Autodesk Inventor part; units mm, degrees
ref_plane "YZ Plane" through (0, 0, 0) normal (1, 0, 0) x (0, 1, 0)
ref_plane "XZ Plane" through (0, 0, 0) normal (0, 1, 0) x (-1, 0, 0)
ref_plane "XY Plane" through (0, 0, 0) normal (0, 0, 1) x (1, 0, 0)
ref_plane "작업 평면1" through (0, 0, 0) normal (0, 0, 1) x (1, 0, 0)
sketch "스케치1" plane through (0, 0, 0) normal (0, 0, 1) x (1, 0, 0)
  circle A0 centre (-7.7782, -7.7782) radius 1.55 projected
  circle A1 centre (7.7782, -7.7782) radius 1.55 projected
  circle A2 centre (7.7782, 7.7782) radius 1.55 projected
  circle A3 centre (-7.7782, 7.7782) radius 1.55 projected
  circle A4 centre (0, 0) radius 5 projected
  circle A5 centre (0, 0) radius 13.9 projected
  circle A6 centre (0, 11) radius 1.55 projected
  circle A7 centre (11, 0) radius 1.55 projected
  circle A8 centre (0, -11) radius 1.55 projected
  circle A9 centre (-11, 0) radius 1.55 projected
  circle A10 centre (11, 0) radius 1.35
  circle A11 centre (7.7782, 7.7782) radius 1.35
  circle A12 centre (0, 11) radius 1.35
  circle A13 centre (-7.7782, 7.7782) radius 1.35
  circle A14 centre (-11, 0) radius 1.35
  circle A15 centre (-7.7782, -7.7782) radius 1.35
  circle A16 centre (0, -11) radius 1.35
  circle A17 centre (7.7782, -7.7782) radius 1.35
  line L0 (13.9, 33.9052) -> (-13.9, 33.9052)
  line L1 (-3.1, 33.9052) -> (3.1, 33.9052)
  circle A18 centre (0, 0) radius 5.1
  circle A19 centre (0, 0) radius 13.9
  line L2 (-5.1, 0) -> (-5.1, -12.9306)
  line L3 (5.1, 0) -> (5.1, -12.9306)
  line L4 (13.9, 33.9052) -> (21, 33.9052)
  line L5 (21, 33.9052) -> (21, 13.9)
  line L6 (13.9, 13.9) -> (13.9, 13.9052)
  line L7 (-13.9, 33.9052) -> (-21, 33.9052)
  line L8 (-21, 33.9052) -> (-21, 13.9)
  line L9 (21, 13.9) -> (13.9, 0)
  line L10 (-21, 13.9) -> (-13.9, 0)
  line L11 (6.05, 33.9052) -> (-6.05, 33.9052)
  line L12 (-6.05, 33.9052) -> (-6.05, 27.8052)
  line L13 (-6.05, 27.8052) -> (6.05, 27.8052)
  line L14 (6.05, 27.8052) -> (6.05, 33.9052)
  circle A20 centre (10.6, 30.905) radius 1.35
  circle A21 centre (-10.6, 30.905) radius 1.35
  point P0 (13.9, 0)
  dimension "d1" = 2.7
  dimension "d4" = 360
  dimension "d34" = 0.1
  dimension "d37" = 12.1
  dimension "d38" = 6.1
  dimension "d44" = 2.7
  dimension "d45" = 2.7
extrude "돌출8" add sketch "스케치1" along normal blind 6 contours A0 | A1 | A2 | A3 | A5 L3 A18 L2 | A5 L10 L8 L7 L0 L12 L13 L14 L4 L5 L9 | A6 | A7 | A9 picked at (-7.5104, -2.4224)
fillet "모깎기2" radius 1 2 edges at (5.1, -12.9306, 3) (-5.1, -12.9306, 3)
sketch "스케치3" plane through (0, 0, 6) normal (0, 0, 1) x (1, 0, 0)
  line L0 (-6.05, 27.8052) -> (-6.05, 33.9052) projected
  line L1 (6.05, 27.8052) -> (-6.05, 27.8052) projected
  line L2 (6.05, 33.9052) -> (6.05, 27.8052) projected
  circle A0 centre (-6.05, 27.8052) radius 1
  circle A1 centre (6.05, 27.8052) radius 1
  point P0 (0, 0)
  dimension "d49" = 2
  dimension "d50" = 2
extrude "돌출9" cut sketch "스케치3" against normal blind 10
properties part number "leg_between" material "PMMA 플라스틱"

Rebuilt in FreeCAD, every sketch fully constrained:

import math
import FreeCAD as App
import Part
import Sketcher
from FreeCAD import Vector


def edges_at(feature, points):
    """Names of the edges that pass closest to the given points."""
    edges = feature.Shape.Edges
    near = lambda p: min(range(len(edges)), key=lambda i: edges[i].distToShape(Part.Vertex(*p))[0])
    return sorted({f"Edge{near(p) + 1}" for p in points})

doc = App.newDocument("Part")
body = doc.addObject("PartDesign::Body", "Body")

sketch1 = body.newObject("Sketcher::SketchObject", "Sketch")
sketch1.AttachmentSupport = (doc.getObject("XY_Plane"), [""])
sketch1.MapMode = "FlatFace"
sketch1.addGeometry([
    Part.ArcOfCircle(Part.Circle(Vector(0, 0, 0), Vector(0, 0, 1), 13.9), math.radians(-68), math.radians(0)),
    Part.LineSegment(Vector(13.9, 0, 0), Vector(21, 13.9, 0)),
    Part.LineSegment(Vector(21, 13.9, 0), Vector(21, 33.9, 0)),
    Part.LineSegment(Vector(21, 33.9, 0), Vector(6, 33.9, 0)),
    Part.LineSegment(Vector(6, 33.9, 0), Vector(6, 27.8, 0)),
    Part.LineSegment(Vector(6, 27.8, 0), Vector(-6, 27.8, 0)),
    Part.LineSegment(Vector(-6, 27.8, 0), Vector(-6, 33.9, 0)),
    Part.LineSegment(Vector(-6, 33.9, 0), Vector(-21, 33.9, 0)),
    Part.LineSegment(Vector(-21, 33.9, 0), Vector(-21, 13.9, 0)),
    Part.LineSegment(Vector(-21, 13.9, 0), Vector(-13.9, 0, 0)),
    Part.ArcOfCircle(Part.Circle(Vector(0, 0, 0), Vector(0, 0, 1), 13.9), math.radians(180), math.radians(248)),
    Part.LineSegment(Vector(-5.1, -12.9, 0), Vector(-5.1, 0, 0)),
    Part.ArcOfCircle(Part.Circle(Vector(0, 0, 0), Vector(0, 0, 1), 5.1), math.radians(0), math.radians(180)),
    Part.LineSegment(Vector(5.1, 0, 0), Vector(5.1, -12.9, 0)),
    Part.Circle(Vector(-7.8, -7.8, 0), Vector(0, 0, 1), 1.4),
    Part.Circle(Vector(10.6, 30.9, 0), Vector(0, 0, 1), 1.4),
    Part.Circle(Vector(-10.6, 30.9, 0), Vector(0, 0, 1), 1.4),
    Part.Circle(Vector(0, 11, 0), Vector(0, 0, 1), 1.4),
    Part.Circle(Vector(-11, 0, 0), Vector(0, 0, 1), 1.4),
    Part.Circle(Vector(-7.8, 7.8, 0), Vector(0, 0, 1), 1.4),
    Part.Circle(Vector(7.8, -7.8, 0), Vector(0, 0, 1), 1.4),
    Part.Circle(Vector(7.8, 7.8, 0), Vector(0, 0, 1), 1.4),
    Part.Circle(Vector(11, 0, 0), Vector(0, 0, 1), 1.4),
], False)
sketch1.addConstraint([
    Sketcher.Constraint("Coincident", 0, 2, 1, 1),
    Sketcher.Constraint("Coincident", 1, 2, 2, 1),
    Sketcher.Constraint("Coincident", 2, 2, 3, 1),
    Sketcher.Constraint("Coincident", 3, 2, 4, 1),
    Sketcher.Constraint("Coincident", 4, 2, 5, 1),
    Sketcher.Constraint("Coincident", 5, 2, 6, 1),
    Sketcher.Constraint("Coincident", 6, 2, 7, 1),
    Sketcher.Constraint("Coincident", 7, 2, 8, 1),
    Sketcher.Constraint("Coincident", 8, 2, 9, 1),
    Sketcher.Constraint("Coincident", 9, 2, 10, 1),
    Sketcher.Constraint("Coincident", 10, 2, 11, 1),
    Sketcher.Constraint("Tangent", 11, 2, 12, 2),
    Sketcher.Constraint("Tangent", 12, 1, 13, 1),
    Sketcher.Constraint("Coincident", 13, 2, 0, 1),
    Sketcher.Constraint("Vertical", 2),
    Sketcher.Constraint("Horizontal", 3),
    Sketcher.Constraint("Vertical", 4),
    Sketcher.Constraint("Horizontal", 5),
    Sketcher.Constraint("Vertical", 6),
    Sketcher.Constraint("Horizontal", 7),
    Sketcher.Constraint("Vertical", 8),
    Sketcher.Constraint("Vertical", 11),
    Sketcher.Constraint("Vertical", 13),
    Sketcher.Constraint("Coincident", 0, 3, -1, 1),
    Sketcher.Constraint("Coincident", 10, 3, -1, 1),
    Sketcher.Constraint("Coincident", 12, 3, -1, 1),
    Sketcher.Constraint("Equal", 0, 10),
    Sketcher.Constraint("Equal", 14, 15),
    Sketcher.Constraint("Equal", 15, 16),
    Sketcher.Constraint("Equal", 16, 17),
    Sketcher.Constraint("Equal", 17, 18),
    Sketcher.Constraint("Equal", 18, 19),
    Sketcher.Constraint("Equal", 19, 20),
    Sketcher.Constraint("Equal", 20, 21),
    Sketcher.Constraint("Equal", 21, 22),
    Sketcher.Constraint("Symmetric", 19, 3, 20, 3, -1, 1),
    Sketcher.Constraint("Symmetric", 14, 3, 21, 3, -1, 1),
    Sketcher.Constraint("Symmetric", 18, 3, 22, 3, -1, 1),
    Sketcher.Constraint("Symmetric", 15, 3, 16, 3, -2),
    Sketcher.Constraint("Symmetric", 14, 3, 20, 3, -2),
    Sketcher.Constraint("Symmetric", 3, 2, 6, 2, -2),
    Sketcher.Constraint("Symmetric", 1, 2, 8, 2, -2),
    Sketcher.Constraint("PointOnObject", 17, 3, -2),
    Sketcher.Constraint("PointOnObject", 18, 3, -1),
    Sketcher.Constraint("PointOnObject", 0, 2, -1),
    Sketcher.Constraint("PointOnObject", 9, 2, -1),
    Sketcher.Constraint("Diameter", 14, 2.7),
    Sketcher.Constraint("DistanceX", 5, 2, 5, 1, 12.1),
    Sketcher.Constraint("DistanceY", 4, 2, 4, 1, 6.1),
    Sketcher.Constraint("Radius", 0, 13.9),
    Sketcher.Constraint("Radius", 12, 5.1),
    Sketcher.Constraint("DistanceY", -1, 1, 17, 3, 11.0),
    Sketcher.Constraint("DistanceX", 18, 3, -1, 1, 11.0),
    Sketcher.Constraint("DistanceX", -1, 1, 1, 2, 21.0),
    Sketcher.Constraint("DistanceX", -1, 1, 15, 3, 10.6),
    Sketcher.Constraint("DistanceY", -1, 1, 1, 2, 13.9),
    Sketcher.Constraint("DistanceY", 2, 1, 2, 2, 20.0052),
    Sketcher.Constraint("DistanceY", -1, 1, 15, 3, 30.905),
    Sketcher.Constraint("DistanceY", 21, 3, 2, 2, 26.127),
    Sketcher.Constraint("DistanceX", 14, 3, -1, 1, 7.7782),
])
pad1 = body.newObject("PartDesign::Pad", "Pad")
pad1.Profile = sketch1
pad1.Length = 6
doc.recompute()

fillet = body.newObject("PartDesign::Fillet", "Fillet")
fillet.Base = (pad1, edges_at(pad1, [(5.1, -12.931, 3), (-5.1, -12.931, 3)]))
fillet.Radius = 1

sketch2 = body.newObject("Sketcher::SketchObject", "Sketch001")
sketch2.AttachmentSupport = (doc.getObject("XY_Plane"), [""])
sketch2.MapMode = "FlatFace"
sketch2.AttachmentOffset = App.Placement(Vector(0, 0, 6), App.Rotation())
sketch2.addGeometry([
    Part.Circle(Vector(-6, 27.8, 0), Vector(0, 0, 1), 1),
    Part.Circle(Vector(6, 27.8, 0), Vector(0, 0, 1), 1),
], False)
sketch2.addConstraint([
    Sketcher.Constraint("Equal", 0, 1),
    Sketcher.Constraint("Symmetric", 0, 3, 1, 3, -2),
    Sketcher.Constraint("Diameter", 0, 2.0),
    Sketcher.Constraint("DistanceX", 0, 3, 1, 3, 12.1),
    Sketcher.Constraint("DistanceY", -1, 1, 0, 3, 27.8052),
])
pocket1 = body.newObject("PartDesign::Pocket", "Pocket")
pocket1.Profile = sketch2
pocket1.Length = 10

doc.recompute()
